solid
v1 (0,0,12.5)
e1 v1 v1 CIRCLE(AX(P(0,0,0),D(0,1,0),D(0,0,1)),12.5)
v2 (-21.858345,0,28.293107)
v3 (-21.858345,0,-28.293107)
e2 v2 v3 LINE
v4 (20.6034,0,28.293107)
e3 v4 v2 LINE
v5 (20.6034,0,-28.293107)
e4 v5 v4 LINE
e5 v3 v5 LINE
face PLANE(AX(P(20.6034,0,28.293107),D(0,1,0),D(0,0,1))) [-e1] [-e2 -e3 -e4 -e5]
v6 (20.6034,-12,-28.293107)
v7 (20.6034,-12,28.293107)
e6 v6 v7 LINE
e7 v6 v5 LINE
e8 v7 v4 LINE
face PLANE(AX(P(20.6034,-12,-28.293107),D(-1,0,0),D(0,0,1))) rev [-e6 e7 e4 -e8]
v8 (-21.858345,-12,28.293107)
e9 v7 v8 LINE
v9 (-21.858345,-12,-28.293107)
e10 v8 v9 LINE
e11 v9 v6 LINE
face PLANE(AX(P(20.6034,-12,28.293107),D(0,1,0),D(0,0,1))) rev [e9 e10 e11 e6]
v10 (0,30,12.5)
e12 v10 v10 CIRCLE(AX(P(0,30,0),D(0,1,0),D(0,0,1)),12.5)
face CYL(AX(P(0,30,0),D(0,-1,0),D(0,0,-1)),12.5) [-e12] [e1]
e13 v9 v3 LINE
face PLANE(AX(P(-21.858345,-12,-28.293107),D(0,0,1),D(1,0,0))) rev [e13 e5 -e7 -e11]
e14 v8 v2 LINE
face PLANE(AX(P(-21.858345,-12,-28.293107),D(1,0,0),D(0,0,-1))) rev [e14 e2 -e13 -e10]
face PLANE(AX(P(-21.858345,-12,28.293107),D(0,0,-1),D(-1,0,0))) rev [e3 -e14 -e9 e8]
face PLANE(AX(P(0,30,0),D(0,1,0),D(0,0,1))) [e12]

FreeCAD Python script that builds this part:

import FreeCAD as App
import Part
import Sketcher
from FreeCAD import Vector
Q = App.Units.Quantity


def add_polygon(sketch, points):
    """Adds a closed chain of lines whose ends are joined by coincident constraints."""
    first, n = sketch.GeometryCount, len(points)
    for a, b in zip(points, points[1:] + points[:1]):
        sketch.addGeometry(Part.LineSegment(App.Vector(*a, 0), App.Vector(*b, 0)), False)
    for i in range(n):
        sketch.addConstraint(Sketcher.Constraint("Coincident", first + i, 2, first + (i + 1) % n, 1))

doc = App.newDocument("Part")
params = doc.addObject("Spreadsheet::Sheet", "Params")
for row, (alias, value) in enumerate([
    ("sketch1_diameter", "25 mm"),
    ("pad1_length", "30 mm"),
    ("pad2_length", "12 mm"),
], start=1):
    params.set(f"A{row}", alias)
    params.set(f"B{row}", "=" + value)
    params.setAlias(f"B{row}", alias)

body = doc.addObject("PartDesign::Body", "Body")

# Sketch on XZ plane
sketch1 = doc.addObject("Sketcher::SketchObject", "Sketch")
body.addObject(sketch1)
sketch1.AttachmentSupport = (doc.XZ_Plane, [""])
sketch1.MapMode = "FlatFace"
sketch1.addGeometry(Part.Circle(Vector(0, 0, 0), Vector(0, 0, 1), 12.5), False)
sketch1.addConstraint(Sketcher.Constraint("Coincident", 0, 3, -1, 1))
sketch1.addConstraint(Sketcher.Constraint("Diameter", 0, Q("25 mm")))
sketch1.setExpression("Constraints[1]", "Params.sketch1_diameter")
pad1 = doc.addObject("PartDesign::Pad", "Pad")
body.addObject(pad1)
pad1.Profile = sketch1
pad1.setExpression("Length", "Params.pad1_length")
pad1.Reversed = True

# Sketch on XZ plane
sketch2 = doc.addObject("Sketcher::SketchObject", "Sketch001")
body.addObject(sketch2)
sketch2.AttachmentSupport = (doc.XZ_Plane, [""])
sketch2.MapMode = "FlatFace"
add_polygon(sketch2, [(-21.858345, 28.293107), (-21.858345, -28.293107), (20.6034, -28.293107), (20.6034, 28.293107)])  # lines 0-3
sketch2.addConstraint(Sketcher.Constraint("Vertical", 0))
sketch2.addConstraint(Sketcher.Constraint("Horizontal", 1))
sketch2.addConstraint(Sketcher.Constraint("Vertical", 2))
sketch2.addConstraint(Sketcher.Constraint("Horizontal", 3))
sketch2.addConstraint(Sketcher.Constraint("DistanceX", -1, 1, 1, 2, Q("20.6034 mm")))
sketch2.addConstraint(Sketcher.Constraint("DistanceX", 1, 1, 1, 2, Q("42.461745 mm")))
sketch2.addConstraint(Sketcher.Constraint("DistanceY", 0, 2, 0, 1, Q("56.586214 mm")))
sketch2.addConstraint(Sketcher.Constraint("DistanceY", 0, 2, -1, 1, Q("28.293107 mm")))
pad2 = doc.addObject("PartDesign::Pad", "Pad001")
body.addObject(pad2)
pad2.Profile = sketch2
pad2.setExpression("Length", "Params.pad2_length")

doc.recompute()
